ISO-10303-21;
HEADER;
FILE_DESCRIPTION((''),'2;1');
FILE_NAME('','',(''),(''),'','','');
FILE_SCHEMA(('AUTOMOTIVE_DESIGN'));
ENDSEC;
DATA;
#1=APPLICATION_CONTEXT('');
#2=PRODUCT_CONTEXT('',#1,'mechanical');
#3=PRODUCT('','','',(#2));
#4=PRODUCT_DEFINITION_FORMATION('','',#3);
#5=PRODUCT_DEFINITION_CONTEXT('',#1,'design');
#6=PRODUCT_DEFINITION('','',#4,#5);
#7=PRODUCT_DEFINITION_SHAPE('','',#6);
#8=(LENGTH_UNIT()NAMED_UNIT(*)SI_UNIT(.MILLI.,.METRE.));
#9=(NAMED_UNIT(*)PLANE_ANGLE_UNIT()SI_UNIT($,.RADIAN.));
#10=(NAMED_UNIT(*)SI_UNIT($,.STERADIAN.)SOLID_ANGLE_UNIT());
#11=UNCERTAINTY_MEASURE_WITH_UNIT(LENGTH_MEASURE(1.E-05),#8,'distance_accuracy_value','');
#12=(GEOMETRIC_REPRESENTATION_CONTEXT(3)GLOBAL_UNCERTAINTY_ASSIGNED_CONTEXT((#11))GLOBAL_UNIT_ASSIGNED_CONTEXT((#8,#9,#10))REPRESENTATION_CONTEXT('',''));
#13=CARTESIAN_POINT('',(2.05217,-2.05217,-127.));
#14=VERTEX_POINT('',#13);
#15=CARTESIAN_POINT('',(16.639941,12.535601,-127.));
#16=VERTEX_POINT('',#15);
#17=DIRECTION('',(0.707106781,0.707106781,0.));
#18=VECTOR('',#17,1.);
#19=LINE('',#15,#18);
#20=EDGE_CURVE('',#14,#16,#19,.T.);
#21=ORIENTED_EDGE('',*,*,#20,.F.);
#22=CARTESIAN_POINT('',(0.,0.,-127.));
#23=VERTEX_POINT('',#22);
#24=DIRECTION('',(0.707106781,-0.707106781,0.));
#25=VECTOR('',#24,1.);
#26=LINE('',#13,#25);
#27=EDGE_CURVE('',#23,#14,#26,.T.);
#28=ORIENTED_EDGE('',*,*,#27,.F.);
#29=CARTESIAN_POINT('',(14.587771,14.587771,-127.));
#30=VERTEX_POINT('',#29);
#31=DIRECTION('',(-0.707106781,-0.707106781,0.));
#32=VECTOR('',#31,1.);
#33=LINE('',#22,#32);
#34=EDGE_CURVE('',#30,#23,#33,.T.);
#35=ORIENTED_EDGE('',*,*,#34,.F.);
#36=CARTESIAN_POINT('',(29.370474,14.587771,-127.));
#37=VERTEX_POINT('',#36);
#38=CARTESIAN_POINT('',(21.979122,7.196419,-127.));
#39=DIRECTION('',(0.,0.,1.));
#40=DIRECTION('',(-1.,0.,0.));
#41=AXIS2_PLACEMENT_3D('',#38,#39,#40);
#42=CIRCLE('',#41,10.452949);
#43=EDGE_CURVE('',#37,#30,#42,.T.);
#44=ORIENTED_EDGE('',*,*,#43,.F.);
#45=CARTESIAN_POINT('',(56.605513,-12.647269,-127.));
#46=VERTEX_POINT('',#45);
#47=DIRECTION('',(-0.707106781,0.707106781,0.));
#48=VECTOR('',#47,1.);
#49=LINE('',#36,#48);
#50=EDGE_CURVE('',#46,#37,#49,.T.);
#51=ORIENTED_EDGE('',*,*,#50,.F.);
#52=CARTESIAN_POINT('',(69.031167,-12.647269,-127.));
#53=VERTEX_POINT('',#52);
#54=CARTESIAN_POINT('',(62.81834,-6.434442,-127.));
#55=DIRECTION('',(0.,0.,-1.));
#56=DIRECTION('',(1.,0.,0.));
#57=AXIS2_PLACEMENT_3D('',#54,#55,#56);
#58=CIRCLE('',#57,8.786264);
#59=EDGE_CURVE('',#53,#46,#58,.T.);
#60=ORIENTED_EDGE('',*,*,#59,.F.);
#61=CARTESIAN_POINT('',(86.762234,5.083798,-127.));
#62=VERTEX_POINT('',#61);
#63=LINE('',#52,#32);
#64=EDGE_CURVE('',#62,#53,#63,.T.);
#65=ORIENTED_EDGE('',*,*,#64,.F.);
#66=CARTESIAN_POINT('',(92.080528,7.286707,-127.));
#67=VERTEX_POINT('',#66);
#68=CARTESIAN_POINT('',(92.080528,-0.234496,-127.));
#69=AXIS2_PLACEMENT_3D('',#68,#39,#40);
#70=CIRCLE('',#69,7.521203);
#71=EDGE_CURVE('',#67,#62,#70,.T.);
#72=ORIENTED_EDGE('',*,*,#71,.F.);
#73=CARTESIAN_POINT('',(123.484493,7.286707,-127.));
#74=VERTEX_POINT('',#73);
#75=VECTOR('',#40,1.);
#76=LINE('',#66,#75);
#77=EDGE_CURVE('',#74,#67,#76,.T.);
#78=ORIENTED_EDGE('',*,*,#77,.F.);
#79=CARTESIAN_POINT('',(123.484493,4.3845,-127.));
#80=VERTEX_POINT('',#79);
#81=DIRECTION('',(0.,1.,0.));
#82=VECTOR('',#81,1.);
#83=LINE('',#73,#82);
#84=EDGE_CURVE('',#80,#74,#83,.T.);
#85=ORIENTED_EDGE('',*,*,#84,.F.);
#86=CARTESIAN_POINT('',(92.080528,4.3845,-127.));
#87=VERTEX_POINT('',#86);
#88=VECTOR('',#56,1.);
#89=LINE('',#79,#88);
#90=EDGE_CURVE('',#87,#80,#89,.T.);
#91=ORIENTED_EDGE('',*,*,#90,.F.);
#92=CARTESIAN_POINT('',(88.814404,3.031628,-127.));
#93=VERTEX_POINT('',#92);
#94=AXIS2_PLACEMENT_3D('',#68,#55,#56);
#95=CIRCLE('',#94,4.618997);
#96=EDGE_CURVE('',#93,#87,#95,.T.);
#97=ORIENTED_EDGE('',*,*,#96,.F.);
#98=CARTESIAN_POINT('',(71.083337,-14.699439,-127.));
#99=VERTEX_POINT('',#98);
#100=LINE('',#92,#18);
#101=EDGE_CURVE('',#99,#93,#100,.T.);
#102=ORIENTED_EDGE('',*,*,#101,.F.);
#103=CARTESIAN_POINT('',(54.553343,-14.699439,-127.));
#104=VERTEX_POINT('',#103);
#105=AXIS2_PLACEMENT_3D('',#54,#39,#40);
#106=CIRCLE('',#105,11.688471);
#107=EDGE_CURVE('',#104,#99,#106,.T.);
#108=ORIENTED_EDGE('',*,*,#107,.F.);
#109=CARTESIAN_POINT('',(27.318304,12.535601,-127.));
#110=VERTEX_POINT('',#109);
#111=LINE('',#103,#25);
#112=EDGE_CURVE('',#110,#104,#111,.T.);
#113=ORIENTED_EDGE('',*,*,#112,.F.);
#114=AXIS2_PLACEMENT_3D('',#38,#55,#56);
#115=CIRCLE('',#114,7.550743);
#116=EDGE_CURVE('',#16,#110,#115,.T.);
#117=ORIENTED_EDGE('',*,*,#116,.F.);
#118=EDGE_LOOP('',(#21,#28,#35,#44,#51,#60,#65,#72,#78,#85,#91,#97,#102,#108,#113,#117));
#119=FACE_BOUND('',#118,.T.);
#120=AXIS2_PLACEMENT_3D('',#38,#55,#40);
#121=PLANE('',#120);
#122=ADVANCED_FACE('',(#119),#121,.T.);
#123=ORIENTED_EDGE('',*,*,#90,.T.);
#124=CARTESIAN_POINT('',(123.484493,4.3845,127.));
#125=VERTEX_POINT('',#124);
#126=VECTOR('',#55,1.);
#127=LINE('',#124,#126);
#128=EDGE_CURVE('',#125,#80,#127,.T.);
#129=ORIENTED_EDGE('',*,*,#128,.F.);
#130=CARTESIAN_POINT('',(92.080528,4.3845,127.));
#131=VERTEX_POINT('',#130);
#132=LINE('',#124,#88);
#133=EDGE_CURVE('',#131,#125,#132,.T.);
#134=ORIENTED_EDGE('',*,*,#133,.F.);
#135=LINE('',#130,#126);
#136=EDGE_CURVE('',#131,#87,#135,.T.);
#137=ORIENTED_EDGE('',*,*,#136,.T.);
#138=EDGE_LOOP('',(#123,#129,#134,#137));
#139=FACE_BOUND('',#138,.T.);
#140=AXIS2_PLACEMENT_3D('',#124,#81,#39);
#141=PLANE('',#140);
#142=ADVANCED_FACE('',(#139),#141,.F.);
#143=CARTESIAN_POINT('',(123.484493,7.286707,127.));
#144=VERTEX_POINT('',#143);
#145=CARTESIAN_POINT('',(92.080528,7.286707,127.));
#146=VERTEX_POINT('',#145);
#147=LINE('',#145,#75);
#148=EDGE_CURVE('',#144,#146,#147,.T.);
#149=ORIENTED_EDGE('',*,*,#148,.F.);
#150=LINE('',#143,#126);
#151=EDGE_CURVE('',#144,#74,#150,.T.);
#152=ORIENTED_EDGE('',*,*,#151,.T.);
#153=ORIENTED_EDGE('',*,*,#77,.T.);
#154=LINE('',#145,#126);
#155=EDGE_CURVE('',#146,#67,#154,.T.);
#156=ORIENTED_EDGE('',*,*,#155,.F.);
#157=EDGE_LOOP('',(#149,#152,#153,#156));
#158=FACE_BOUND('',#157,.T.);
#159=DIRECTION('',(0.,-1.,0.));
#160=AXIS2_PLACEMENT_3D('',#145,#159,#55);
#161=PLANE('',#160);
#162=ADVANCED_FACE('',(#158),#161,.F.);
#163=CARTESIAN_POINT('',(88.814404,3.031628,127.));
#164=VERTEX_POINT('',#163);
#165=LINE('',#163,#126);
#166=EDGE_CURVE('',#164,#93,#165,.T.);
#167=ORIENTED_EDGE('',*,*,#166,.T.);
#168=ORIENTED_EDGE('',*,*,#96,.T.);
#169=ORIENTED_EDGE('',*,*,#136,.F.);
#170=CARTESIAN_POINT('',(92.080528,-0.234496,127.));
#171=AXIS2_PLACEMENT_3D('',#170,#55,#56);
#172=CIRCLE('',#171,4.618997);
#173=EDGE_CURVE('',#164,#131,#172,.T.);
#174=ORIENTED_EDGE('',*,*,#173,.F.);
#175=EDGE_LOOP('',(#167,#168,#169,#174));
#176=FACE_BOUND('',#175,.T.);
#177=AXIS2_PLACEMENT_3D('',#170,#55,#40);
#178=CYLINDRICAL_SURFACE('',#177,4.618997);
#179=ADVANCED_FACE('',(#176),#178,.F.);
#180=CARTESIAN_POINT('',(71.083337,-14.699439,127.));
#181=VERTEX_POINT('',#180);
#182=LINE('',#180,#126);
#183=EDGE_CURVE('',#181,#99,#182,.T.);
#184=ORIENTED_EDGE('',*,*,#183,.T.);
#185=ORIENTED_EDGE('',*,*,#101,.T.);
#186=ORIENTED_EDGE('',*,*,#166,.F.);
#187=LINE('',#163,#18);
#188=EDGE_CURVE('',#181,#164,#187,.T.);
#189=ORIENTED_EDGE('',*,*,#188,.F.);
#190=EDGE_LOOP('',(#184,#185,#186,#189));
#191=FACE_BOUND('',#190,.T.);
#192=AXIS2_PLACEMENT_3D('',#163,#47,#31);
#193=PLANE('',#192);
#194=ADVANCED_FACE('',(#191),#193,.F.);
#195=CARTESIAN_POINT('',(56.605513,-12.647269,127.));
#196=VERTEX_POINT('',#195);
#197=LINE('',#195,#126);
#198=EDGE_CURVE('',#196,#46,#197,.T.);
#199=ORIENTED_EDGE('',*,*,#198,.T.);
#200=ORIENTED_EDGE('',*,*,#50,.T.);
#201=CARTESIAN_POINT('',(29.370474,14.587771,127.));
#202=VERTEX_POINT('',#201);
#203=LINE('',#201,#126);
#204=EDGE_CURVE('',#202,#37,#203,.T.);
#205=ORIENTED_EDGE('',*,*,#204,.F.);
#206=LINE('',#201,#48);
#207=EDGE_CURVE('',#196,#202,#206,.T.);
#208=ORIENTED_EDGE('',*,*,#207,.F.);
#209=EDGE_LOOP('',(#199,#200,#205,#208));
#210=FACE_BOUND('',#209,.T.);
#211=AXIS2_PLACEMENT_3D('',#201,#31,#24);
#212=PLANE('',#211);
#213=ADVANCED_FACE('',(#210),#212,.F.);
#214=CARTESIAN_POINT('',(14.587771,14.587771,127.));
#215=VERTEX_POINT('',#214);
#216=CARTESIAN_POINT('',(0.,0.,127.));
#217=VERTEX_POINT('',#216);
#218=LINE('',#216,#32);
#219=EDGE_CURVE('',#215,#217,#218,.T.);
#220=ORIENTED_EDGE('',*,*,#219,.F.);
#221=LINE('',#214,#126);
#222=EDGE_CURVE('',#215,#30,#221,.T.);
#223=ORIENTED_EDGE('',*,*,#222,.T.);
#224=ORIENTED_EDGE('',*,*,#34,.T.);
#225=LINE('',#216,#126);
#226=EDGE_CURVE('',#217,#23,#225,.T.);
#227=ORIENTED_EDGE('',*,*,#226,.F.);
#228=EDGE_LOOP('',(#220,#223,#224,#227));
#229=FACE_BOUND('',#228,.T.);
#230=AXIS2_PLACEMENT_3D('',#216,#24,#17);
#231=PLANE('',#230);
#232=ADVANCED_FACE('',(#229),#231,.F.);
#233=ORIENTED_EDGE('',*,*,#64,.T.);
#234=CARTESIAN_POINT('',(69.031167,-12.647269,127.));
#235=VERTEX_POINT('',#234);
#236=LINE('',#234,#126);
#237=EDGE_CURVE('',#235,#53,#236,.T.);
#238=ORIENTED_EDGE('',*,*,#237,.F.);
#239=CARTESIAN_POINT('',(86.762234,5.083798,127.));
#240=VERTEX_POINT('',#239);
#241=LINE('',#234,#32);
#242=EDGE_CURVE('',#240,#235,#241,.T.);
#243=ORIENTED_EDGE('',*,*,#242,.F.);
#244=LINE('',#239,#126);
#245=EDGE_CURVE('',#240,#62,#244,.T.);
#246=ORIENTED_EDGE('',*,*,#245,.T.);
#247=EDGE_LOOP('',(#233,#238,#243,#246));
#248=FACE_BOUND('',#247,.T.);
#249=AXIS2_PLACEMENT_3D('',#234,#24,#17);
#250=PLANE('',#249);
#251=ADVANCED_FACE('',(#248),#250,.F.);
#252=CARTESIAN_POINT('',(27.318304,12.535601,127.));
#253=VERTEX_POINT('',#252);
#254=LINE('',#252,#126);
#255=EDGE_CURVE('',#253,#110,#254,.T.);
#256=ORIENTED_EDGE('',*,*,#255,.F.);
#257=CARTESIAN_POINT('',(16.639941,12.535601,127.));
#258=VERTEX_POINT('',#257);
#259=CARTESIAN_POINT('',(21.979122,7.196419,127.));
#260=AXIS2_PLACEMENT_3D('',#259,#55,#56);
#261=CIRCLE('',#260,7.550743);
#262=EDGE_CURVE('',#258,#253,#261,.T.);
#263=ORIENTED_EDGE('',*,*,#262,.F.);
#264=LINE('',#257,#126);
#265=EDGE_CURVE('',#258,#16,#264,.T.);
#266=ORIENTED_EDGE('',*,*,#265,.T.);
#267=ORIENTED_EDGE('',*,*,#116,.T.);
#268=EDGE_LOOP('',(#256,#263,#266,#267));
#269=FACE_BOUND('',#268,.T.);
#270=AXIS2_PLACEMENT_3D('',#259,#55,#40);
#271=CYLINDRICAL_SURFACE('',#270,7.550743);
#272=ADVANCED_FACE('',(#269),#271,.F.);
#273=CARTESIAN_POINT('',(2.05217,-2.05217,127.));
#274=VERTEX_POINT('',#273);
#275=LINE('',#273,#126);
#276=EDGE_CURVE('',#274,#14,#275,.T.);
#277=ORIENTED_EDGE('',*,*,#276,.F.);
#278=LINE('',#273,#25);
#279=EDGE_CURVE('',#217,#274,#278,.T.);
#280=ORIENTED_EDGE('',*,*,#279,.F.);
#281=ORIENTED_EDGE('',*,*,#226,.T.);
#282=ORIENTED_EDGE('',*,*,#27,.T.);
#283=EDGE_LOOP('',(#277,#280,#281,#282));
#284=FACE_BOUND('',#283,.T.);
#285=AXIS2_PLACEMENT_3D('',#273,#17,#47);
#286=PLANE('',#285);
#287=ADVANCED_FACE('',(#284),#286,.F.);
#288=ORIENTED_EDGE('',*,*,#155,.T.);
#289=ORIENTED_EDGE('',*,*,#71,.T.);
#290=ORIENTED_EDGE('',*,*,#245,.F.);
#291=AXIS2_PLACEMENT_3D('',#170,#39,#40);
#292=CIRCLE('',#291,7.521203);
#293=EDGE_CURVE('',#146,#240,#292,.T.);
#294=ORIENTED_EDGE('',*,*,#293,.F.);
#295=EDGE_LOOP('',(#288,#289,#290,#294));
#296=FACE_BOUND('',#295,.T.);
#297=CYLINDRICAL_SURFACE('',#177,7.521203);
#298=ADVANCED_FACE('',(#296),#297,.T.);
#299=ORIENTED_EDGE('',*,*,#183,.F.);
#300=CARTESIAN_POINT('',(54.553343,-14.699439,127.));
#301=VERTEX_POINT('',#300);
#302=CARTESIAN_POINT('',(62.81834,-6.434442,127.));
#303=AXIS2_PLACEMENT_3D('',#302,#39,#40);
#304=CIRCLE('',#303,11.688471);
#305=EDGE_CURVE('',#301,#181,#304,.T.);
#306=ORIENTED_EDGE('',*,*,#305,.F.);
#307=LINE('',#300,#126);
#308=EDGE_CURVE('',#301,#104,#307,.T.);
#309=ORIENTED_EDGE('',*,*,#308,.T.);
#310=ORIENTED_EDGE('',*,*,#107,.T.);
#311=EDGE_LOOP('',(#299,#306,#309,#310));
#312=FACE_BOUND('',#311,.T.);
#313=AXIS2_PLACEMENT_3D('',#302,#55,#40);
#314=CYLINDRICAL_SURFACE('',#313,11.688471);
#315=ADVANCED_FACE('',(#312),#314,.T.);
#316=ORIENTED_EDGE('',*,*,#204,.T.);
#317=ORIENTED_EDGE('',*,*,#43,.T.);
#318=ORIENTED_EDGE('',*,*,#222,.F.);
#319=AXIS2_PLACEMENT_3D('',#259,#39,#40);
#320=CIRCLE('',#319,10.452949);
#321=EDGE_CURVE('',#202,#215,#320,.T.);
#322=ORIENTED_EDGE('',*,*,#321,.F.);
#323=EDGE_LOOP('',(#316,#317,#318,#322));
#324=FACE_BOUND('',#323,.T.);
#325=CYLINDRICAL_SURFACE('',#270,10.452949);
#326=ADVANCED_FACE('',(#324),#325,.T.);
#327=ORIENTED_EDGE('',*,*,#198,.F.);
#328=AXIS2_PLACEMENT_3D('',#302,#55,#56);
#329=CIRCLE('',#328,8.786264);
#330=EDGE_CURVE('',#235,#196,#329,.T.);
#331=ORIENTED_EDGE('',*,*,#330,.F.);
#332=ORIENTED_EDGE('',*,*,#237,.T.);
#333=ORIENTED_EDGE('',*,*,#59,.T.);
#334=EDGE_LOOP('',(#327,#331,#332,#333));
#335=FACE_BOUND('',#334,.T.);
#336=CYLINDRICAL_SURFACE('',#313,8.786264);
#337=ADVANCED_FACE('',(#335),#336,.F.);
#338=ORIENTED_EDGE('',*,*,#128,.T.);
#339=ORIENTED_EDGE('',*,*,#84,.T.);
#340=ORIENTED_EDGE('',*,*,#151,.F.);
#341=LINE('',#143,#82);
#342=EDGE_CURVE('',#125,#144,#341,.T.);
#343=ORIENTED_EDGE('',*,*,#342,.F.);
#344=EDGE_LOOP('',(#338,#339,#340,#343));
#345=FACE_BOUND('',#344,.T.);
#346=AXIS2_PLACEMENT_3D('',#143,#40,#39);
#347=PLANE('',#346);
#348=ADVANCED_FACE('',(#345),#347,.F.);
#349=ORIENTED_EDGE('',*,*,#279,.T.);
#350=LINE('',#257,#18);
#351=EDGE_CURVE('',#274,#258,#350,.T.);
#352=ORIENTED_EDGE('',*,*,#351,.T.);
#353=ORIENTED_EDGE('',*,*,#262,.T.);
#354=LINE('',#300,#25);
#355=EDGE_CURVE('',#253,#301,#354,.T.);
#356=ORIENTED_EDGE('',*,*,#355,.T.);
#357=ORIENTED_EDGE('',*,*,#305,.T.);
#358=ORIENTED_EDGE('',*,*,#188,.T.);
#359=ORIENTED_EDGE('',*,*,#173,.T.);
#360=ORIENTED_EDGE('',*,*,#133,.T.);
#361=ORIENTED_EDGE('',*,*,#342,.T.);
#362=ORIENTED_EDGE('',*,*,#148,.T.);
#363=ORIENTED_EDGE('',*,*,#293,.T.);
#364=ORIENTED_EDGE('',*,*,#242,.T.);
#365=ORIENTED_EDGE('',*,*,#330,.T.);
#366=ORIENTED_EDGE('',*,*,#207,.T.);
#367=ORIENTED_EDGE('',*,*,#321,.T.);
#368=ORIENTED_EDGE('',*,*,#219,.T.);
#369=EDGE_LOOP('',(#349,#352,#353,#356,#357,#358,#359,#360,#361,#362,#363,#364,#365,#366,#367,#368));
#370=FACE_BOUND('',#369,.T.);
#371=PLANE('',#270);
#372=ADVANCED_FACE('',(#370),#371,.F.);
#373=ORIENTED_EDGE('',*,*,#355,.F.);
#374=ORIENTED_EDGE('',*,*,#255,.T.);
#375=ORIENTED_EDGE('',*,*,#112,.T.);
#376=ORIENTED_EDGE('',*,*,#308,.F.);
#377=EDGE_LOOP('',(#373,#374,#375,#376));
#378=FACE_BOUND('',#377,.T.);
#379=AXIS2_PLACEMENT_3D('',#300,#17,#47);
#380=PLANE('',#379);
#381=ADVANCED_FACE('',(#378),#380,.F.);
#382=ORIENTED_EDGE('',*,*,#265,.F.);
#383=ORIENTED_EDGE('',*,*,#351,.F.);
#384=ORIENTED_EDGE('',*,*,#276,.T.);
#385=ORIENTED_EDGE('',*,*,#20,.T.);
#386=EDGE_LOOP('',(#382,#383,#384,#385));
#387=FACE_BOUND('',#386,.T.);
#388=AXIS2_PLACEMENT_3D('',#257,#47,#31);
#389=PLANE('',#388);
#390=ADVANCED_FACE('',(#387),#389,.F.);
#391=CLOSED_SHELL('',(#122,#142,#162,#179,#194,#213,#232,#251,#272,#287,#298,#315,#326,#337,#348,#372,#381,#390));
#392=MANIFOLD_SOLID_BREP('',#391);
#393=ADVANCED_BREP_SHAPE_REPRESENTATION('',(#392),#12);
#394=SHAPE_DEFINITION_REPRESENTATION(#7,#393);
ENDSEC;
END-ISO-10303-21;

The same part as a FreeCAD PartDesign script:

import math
import FreeCAD as App
import Part
import Sketcher
from FreeCAD import Vector
Q = App.Units.Quantity

doc = App.newDocument("Part")
body = doc.addObject("PartDesign::Body", "Body")

# Sketch on XY plane
sketch1 = doc.addObject("Sketcher::SketchObject", "Sketch")
body.addObject(sketch1)
sketch1.AttachmentSupport = (doc.XY_Plane, [""])
sketch1.MapMode = "FlatFace"
sketch1.addGeometry(Part.LineSegment(Vector(14.587771, 14.587771, 0), Vector(0, 0, 0)), False)
sketch1.addGeometry(Part.LineSegment(Vector(0, 0, 0), Vector(2.05217, -2.05217, 0)), False)
sketch1.addGeometry(Part.LineSegment(Vector(2.05217, -2.05217, 0), Vector(16.639941, 12.535601, 0)), False)
sketch1.addGeometry(Part.ArcOfCircle(Part.Circle(Vector(21.979122, 7.196419, 0), Vector(0, 0, 1), 7.550743), math.radians(45), math.radians(135)), False)
sketch1.addGeometry(Part.LineSegment(Vector(27.318304, 12.535601, 0), Vector(54.553343, -14.699439, 0)), False)
sketch1.addGeometry(Part.ArcOfCircle(Part.Circle(Vector(62.81834, -6.434442, 0), Vector(0, 0, 1), 11.688471), math.radians(-135), math.radians(-45)), False)
sketch1.addGeometry(Part.LineSegment(Vector(71.083337, -14.699439, 0), Vector(88.814404, 3.031628, 0)), False)
sketch1.addGeometry(Part.ArcOfCircle(Part.Circle(Vector(92.080528, -0.234496, 0), Vector(0, 0, 1), 4.618997), math.radians(90), math.radians(135)), False)
sketch1.addGeometry(Part.LineSegment(Vector(92.080528, 4.3845, 0), Vector(123.484493, 4.3845, 0)), False)
sketch1.addGeometry(Part.LineSegment(Vector(123.484493, 4.3845, 0), Vector(123.484493, 7.286707, 0)), False)
sketch1.addGeometry(Part.LineSegment(Vector(123.484493, 7.286707, 0), Vector(92.080528, 7.286707, 0)), False)
sketch1.addGeometry(Part.ArcOfCircle(Part.Circle(Vector(92.080528, -0.234496, 0), Vector(0, 0, 1), 7.521203), math.radians(90), math.radians(135)), False)
sketch1.addGeometry(Part.LineSegment(Vector(86.762234, 5.083798, 0), Vector(69.031167, -12.647269, 0)), False)
sketch1.addGeometry(Part.ArcOfCircle(Part.Circle(Vector(62.81834, -6.434442, 0), Vector(0, 0, 1), 8.786264), math.radians(-135), math.radians(-45)), False)
sketch1.addGeometry(Part.LineSegment(Vector(56.605513, -12.647269, 0), Vector(29.370474, 14.587771, 0)), False)
sketch1.addGeometry(Part.ArcOfCircle(Part.Circle(Vector(21.979122, 7.196419, 0), Vector(0, 0, 1), 10.452949), math.radians(45), math.radians(135)), False)
sketch1.addConstraint(Sketcher.Constraint("Coincident", 0, 2, 1, 1))
sketch1.addConstraint(Sketcher.Constraint("Coincident", 1, 2, 2, 1))
sketch1.addConstraint(Sketcher.Constraint("Tangent", 2, 2, 3, 2))
sketch1.addConstraint(Sketcher.Constraint("Tangent", 3, 1, 4, 1))
sketch1.addConstraint(Sketcher.Constraint("Tangent", 4, 2, 5, 1))
sketch1.addConstraint(Sketcher.Constraint("Tangent", 5, 2, 6, 1))
sketch1.addConstraint(Sketcher.Constraint("Tangent", 6, 2, 7, 2))
sketch1.addConstraint(Sketcher.Constraint("Tangent", 7, 1, 8, 1))
sketch1.addConstraint(Sketcher.Constraint("Coincident", 8, 2, 9, 1))
sketch1.addConstraint(Sketcher.Constraint("Coincident", 9, 2, 10, 1))
sketch1.addConstraint(Sketcher.Constraint("Tangent", 10, 2, 11, 1))
sketch1.addConstraint(Sketcher.Constraint("Tangent", 11, 2, 12, 1))
sketch1.addConstraint(Sketcher.Constraint("Tangent", 12, 2, 13, 2))
sketch1.addConstraint(Sketcher.Constraint("Tangent", 13, 1, 14, 1))
sketch1.addConstraint(Sketcher.Constraint("Tangent", 14, 2, 15, 1))
sketch1.addConstraint(Sketcher.Constraint("Tangent", 15, 2, 0, 1))
sketch1.addConstraint(Sketcher.Constraint("Horizontal", 8))
sketch1.addConstraint(Sketcher.Constraint("Vertical", 9))
sketch1.addConstraint(Sketcher.Constraint("Horizontal", 10))
sketch1.addConstraint(Sketcher.Constraint("Coincident", 0, 2, -1, 1))
sketch1.addConstraint(Sketcher.Constraint("Coincident", 11, 3, 7, 3))
sketch1.addConstraint(Sketcher.Constraint("Coincident", 13, 3, 5, 3))
sketch1.addConstraint(Sketcher.Constraint("Coincident", 15, 3, 3, 3))
sketch1.addConstraint(Sketcher.Constraint("Perpendicular", 0, 1))
sketch1.addConstraint(Sketcher.Constraint("Perpendicular", 1, 2))
sketch1.addConstraint(Sketcher.Constraint("Perpendicular", 2, 4))
sketch1.addConstraint(Sketcher.Constraint("Perpendicular", 4, 6))
sketch1.addConstraint(Sketcher.Constraint("Parallel", 6, 12))
sketch1.addConstraint(Sketcher.Constraint("Perpendicular", 12, 14))
sketch1.addConstraint(Sketcher.Constraint("Horizontal", 2, 2, 3, 1))
sketch1.addConstraint(Sketcher.Constraint("Radius", 5, Q("11.688471 mm")))
sketch1.addConstraint(Sketcher.Constraint("Radius", 15, Q("10.452949 mm")))
sketch1.addConstraint(Sketcher.Constraint("Radius", 3, Q("7.550743 mm")))
sketch1.addConstraint(Sketcher.Constraint("Radius", 7, Q("4.618997 mm")))
sketch1.addConstraint(Sketcher.Constraint("DistanceY", -1, 1, 2, 2, Q("12.535601 mm")))
sketch1.addConstraint(Sketcher.Constraint("DistanceY", -1, 1, 7, 1, Q("4.3845 mm")))
sketch1.addConstraint(Sketcher.Constraint("DistanceX", 2, 2, 5, 3, Q("46.178399 mm")))
sketch1.addConstraint(Sketcher.Constraint("DistanceX", 8, 1, 8, 2, Q("31.403966 mm")))
pad1 = doc.addObject("PartDesign::Pad", "Pad")
body.addObject(pad1)
pad1.Profile = sketch1
pad1.Length = Q("10 in")
pad1.Midplane = True

doc.recompute()
